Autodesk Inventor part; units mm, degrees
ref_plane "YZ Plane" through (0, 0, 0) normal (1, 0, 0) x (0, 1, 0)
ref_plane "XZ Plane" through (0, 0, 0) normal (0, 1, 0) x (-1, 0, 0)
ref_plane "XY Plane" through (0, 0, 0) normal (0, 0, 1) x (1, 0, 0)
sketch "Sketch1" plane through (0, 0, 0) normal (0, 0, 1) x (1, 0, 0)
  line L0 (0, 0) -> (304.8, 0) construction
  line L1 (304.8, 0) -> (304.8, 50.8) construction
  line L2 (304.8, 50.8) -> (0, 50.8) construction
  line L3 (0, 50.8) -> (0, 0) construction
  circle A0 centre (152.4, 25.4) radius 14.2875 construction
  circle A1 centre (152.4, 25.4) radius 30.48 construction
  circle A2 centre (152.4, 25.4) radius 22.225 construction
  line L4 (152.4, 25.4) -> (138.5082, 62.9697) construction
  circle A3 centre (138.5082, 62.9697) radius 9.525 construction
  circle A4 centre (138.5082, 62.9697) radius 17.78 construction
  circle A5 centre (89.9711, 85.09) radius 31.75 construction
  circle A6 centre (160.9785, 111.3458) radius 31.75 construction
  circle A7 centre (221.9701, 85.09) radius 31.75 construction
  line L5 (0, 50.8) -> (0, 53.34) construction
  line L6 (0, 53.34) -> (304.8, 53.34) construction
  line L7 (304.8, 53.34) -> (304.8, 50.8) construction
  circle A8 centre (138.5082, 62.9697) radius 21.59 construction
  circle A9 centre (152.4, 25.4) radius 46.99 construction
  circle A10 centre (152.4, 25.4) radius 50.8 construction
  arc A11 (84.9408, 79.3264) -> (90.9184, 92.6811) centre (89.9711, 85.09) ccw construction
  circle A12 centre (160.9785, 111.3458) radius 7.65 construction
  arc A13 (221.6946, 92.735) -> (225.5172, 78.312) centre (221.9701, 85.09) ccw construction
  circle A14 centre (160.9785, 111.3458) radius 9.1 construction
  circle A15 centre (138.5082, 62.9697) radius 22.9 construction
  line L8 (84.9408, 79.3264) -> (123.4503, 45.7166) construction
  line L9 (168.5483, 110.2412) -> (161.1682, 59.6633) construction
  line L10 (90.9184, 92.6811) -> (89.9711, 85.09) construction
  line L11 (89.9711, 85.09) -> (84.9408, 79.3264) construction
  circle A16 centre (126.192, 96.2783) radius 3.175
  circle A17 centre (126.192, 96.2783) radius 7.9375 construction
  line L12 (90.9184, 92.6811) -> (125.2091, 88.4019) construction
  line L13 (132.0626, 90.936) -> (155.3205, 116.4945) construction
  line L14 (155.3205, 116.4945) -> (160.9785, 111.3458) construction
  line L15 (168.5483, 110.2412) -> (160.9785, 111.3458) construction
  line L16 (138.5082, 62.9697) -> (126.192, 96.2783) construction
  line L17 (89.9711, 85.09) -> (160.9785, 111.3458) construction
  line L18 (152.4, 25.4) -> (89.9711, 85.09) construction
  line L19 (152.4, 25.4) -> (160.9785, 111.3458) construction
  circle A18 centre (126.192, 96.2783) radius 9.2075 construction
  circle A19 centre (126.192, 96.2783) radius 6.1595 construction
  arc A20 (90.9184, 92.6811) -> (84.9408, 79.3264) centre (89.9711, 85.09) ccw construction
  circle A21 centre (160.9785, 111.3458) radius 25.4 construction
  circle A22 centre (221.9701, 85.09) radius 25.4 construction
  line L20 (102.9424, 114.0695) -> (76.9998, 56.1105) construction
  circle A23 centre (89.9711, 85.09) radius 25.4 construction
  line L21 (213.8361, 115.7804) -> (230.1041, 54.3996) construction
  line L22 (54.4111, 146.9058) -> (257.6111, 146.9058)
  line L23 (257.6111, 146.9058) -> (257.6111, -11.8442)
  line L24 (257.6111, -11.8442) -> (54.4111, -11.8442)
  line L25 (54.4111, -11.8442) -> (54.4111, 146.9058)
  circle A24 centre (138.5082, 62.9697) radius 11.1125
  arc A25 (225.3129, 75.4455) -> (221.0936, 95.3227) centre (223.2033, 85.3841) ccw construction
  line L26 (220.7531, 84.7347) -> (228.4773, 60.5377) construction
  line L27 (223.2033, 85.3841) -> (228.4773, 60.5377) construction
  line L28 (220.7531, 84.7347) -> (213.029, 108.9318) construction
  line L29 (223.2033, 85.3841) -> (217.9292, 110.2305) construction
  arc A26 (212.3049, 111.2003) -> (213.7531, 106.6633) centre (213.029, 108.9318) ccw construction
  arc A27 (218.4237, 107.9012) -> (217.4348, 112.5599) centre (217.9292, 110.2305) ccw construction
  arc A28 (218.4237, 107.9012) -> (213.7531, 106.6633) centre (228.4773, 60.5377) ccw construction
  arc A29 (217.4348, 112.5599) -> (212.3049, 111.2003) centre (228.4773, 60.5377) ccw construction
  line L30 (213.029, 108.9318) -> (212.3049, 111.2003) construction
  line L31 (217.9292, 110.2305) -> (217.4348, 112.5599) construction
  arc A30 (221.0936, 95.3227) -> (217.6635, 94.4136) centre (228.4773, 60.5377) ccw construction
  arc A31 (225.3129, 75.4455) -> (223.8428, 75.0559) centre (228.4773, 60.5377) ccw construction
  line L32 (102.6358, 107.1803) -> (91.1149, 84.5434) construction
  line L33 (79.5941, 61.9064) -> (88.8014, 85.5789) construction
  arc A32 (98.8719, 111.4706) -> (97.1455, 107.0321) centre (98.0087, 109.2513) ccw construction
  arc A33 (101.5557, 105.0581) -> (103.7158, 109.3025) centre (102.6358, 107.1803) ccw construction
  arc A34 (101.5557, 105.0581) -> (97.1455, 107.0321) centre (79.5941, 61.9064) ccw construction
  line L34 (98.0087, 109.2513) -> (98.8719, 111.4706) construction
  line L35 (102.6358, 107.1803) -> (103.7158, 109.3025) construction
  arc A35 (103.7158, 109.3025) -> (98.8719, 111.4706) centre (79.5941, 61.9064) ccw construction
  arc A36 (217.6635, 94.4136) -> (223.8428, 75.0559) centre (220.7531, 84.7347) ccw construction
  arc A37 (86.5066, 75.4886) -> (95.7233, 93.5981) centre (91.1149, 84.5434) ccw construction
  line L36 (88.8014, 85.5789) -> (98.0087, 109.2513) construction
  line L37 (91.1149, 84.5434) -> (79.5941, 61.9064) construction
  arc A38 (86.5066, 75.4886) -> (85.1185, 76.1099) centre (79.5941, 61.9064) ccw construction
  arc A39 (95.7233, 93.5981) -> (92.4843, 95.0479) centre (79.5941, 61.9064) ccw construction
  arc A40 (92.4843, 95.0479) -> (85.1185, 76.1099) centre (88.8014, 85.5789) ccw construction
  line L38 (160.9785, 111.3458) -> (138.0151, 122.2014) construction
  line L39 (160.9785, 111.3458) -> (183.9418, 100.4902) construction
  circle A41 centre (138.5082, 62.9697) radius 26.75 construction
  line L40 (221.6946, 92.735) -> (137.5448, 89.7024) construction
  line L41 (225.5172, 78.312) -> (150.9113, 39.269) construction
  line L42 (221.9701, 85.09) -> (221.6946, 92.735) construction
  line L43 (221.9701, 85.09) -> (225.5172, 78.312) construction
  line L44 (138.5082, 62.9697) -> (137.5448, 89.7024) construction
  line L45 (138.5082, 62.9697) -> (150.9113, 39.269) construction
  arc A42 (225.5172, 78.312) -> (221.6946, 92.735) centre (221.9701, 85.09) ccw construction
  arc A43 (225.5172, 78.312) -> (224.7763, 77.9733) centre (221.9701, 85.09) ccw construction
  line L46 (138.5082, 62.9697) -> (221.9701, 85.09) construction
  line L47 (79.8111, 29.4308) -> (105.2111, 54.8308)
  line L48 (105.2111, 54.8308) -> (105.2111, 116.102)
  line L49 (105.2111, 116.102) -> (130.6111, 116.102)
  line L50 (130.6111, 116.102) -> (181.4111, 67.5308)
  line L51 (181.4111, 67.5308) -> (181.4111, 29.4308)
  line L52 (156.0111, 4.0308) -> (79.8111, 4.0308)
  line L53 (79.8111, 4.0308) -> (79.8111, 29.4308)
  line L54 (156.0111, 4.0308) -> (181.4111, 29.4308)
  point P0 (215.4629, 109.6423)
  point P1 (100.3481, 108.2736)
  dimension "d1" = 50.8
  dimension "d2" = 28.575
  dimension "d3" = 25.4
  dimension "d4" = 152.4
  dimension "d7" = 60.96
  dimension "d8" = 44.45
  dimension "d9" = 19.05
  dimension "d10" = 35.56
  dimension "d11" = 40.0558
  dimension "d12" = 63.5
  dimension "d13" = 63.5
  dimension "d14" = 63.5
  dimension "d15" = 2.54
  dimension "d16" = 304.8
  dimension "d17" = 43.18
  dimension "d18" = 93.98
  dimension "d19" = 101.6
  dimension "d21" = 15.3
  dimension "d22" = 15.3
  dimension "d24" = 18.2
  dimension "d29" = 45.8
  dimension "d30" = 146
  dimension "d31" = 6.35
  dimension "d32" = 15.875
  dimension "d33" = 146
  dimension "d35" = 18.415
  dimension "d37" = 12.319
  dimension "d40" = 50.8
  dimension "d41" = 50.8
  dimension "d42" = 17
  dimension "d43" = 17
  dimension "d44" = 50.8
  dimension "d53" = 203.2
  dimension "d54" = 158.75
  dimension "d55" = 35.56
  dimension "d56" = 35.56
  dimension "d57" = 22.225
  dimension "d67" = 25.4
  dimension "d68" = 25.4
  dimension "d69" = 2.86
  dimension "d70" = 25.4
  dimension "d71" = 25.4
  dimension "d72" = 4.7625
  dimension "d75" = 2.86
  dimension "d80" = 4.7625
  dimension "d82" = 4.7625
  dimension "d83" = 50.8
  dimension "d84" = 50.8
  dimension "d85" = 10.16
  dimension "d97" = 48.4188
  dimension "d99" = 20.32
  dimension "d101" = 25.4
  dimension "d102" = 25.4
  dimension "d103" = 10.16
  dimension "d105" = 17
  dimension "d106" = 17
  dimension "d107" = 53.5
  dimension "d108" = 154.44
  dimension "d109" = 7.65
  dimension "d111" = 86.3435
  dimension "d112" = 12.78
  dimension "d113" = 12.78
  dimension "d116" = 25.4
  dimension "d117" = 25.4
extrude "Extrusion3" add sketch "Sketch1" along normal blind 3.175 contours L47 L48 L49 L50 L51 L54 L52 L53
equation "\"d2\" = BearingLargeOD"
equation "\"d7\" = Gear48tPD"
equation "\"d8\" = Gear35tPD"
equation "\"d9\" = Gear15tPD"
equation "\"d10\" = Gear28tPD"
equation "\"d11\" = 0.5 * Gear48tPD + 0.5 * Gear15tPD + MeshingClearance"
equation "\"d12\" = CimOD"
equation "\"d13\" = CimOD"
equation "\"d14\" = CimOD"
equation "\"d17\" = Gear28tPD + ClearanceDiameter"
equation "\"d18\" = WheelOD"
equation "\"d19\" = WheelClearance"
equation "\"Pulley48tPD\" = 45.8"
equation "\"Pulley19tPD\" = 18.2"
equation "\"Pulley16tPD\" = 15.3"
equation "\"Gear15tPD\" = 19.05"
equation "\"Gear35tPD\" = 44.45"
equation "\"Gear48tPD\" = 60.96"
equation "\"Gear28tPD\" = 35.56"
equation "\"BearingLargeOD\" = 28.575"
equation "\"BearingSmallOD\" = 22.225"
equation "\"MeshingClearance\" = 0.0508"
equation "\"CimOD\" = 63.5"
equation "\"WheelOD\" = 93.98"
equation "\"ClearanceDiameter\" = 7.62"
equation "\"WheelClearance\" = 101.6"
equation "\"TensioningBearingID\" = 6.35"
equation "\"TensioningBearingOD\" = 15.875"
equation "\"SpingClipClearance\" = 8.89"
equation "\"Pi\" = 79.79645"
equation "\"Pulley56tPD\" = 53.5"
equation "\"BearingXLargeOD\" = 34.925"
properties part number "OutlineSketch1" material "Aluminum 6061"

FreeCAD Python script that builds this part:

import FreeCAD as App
import Part
import Sketcher

V = App.Vector
Q = App.Units.Quantity

doc = App.newDocument("Part")
body = doc.addObject("PartDesign::Body", "Body")

sketch1 = body.newObject("Sketcher::SketchObject", "Sketch")
sketch1.AttachmentSupport = (doc.getObject("XY_Plane"), [""])
sketch1.MapMode = "FlatFace"
sketch1.addGeometry(Part.LineSegment(V(105.2, 54.8, 0), V(79.8, 29.4, 0)), False)
sketch1.addGeometry(Part.LineSegment(V(79.8, 29.4, 0), V(79.8, 4, 0)), False)
sketch1.addGeometry(Part.LineSegment(V(79.8, 4, 0), V(156, 4, 0)), False)
sketch1.addGeometry(Part.LineSegment(V(156, 4, 0), V(181.4, 29.4, 0)), False)
sketch1.addGeometry(Part.LineSegment(V(181.4, 29.4, 0), V(181.4, 67.5, 0)), False)
sketch1.addGeometry(Part.LineSegment(V(181.4, 67.5, 0), V(130.6, 116.1, 0)), False)
sketch1.addGeometry(Part.LineSegment(V(130.6, 116.1, 0), V(105.2, 116.1, 0)), False)
sketch1.addGeometry(Part.LineSegment(V(105.2, 116.1, 0), V(105.2, 54.8, 0)), False)
sketch1.addGeometry(Part.Circle(V(138.5, 63, 0), V(0, 0, 1), 11.1), False)
sketch1.addGeometry(Part.Circle(V(126.2, 96.3, 0), V(0, 0, 1), 3.2), False)
sketch1.addConstraint(Sketcher.Constraint("Coincident", 0, 2, 1, 1))
sketch1.addConstraint(Sketcher.Constraint("Coincident", 1, 2, 2, 1))
sketch1.addConstraint(Sketcher.Constraint("Coincident", 2, 2, 3, 1))
sketch1.addConstraint(Sketcher.Constraint("Coincident", 3, 2, 4, 1))
sketch1.addConstraint(Sketcher.Constraint("Coincident", 4, 2, 5, 1))
sketch1.addConstraint(Sketcher.Constraint("Coincident", 5, 2, 6, 1))
sketch1.addConstraint(Sketcher.Constraint("Coincident", 6, 2, 7, 1))
sketch1.addConstraint(Sketcher.Constraint("Coincident", 7, 2, 0, 1))
sketch1.addConstraint(Sketcher.Constraint("Vertical", 1))
sketch1.addConstraint(Sketcher.Constraint("Horizontal", 2))
sketch1.addConstraint(Sketcher.Constraint("Vertical", 4))
sketch1.addConstraint(Sketcher.Constraint("Horizontal", 6))
sketch1.addConstraint(Sketcher.Constraint("Vertical", 7))
sketch1.addConstraint(Sketcher.Constraint("Parallel", 0, 3))
sketch1.addConstraint(Sketcher.Constraint("Horizontal", 0, 2, 3, 2))
sketch1.addConstraint(Sketcher.Constraint("Equal", 6, 1))
sketch1.addConstraint(Sketcher.Constraint("Equal", 0, 3))
sketch1.addConstraint(Sketcher.Constraint("Diameter", 9, Q("0.25 in")))
sketch1.addConstraint(Sketcher.Constraint("DistanceX", 6, 2, 6, 1, Q("1 in")))
sketch1.addConstraint(Sketcher.Constraint("Diameter", 8, Q("0.875 in")))
sketch1.addConstraint(Sketcher.Constraint("DistanceX", 2, 2, 3, 2, Q("1 in")))
sketch1.addConstraint(Sketcher.Constraint("DistanceX", 0, 2, 3, 2, Q("4 in")))
sketch1.addConstraint(Sketcher.Constraint("DistanceY", 2, 2, 4, 2, Q("2.5 in")))
sketch1.addConstraint(Sketcher.Constraint("DistanceY", 7, 2, 7, 1, Q("61.2712 mm")))
sketch1.addConstraint(Sketcher.Constraint("DistanceX", -1, 1, 9, 3, Q("4.9682 in")))
sketch1.addConstraint(Sketcher.Constraint("DistanceY", -1, 1, 0, 2, Q("1.1587 in")))
sketch1.addConstraint(Sketcher.Constraint("DistanceX", 9, 3, 8, 3, Q("0.4849 in")))
sketch1.addConstraint(Sketcher.Constraint("DistanceX", 0, 2, 8, 3, Q("2.3109 in")))
sketch1.addConstraint(Sketcher.Constraint("DistanceY", 0, 2, 9, 3, Q("2.6318 in")))
sketch1.addConstraint(Sketcher.Constraint("DistanceY", -1, 1, 8, 3, Q("62.9697 mm")))
pad1 = body.newObject("PartDesign::Pad", "Pad")
pad1.Profile = sketch1
pad1.Length = Q("0.125 in")

doc.recompute()
